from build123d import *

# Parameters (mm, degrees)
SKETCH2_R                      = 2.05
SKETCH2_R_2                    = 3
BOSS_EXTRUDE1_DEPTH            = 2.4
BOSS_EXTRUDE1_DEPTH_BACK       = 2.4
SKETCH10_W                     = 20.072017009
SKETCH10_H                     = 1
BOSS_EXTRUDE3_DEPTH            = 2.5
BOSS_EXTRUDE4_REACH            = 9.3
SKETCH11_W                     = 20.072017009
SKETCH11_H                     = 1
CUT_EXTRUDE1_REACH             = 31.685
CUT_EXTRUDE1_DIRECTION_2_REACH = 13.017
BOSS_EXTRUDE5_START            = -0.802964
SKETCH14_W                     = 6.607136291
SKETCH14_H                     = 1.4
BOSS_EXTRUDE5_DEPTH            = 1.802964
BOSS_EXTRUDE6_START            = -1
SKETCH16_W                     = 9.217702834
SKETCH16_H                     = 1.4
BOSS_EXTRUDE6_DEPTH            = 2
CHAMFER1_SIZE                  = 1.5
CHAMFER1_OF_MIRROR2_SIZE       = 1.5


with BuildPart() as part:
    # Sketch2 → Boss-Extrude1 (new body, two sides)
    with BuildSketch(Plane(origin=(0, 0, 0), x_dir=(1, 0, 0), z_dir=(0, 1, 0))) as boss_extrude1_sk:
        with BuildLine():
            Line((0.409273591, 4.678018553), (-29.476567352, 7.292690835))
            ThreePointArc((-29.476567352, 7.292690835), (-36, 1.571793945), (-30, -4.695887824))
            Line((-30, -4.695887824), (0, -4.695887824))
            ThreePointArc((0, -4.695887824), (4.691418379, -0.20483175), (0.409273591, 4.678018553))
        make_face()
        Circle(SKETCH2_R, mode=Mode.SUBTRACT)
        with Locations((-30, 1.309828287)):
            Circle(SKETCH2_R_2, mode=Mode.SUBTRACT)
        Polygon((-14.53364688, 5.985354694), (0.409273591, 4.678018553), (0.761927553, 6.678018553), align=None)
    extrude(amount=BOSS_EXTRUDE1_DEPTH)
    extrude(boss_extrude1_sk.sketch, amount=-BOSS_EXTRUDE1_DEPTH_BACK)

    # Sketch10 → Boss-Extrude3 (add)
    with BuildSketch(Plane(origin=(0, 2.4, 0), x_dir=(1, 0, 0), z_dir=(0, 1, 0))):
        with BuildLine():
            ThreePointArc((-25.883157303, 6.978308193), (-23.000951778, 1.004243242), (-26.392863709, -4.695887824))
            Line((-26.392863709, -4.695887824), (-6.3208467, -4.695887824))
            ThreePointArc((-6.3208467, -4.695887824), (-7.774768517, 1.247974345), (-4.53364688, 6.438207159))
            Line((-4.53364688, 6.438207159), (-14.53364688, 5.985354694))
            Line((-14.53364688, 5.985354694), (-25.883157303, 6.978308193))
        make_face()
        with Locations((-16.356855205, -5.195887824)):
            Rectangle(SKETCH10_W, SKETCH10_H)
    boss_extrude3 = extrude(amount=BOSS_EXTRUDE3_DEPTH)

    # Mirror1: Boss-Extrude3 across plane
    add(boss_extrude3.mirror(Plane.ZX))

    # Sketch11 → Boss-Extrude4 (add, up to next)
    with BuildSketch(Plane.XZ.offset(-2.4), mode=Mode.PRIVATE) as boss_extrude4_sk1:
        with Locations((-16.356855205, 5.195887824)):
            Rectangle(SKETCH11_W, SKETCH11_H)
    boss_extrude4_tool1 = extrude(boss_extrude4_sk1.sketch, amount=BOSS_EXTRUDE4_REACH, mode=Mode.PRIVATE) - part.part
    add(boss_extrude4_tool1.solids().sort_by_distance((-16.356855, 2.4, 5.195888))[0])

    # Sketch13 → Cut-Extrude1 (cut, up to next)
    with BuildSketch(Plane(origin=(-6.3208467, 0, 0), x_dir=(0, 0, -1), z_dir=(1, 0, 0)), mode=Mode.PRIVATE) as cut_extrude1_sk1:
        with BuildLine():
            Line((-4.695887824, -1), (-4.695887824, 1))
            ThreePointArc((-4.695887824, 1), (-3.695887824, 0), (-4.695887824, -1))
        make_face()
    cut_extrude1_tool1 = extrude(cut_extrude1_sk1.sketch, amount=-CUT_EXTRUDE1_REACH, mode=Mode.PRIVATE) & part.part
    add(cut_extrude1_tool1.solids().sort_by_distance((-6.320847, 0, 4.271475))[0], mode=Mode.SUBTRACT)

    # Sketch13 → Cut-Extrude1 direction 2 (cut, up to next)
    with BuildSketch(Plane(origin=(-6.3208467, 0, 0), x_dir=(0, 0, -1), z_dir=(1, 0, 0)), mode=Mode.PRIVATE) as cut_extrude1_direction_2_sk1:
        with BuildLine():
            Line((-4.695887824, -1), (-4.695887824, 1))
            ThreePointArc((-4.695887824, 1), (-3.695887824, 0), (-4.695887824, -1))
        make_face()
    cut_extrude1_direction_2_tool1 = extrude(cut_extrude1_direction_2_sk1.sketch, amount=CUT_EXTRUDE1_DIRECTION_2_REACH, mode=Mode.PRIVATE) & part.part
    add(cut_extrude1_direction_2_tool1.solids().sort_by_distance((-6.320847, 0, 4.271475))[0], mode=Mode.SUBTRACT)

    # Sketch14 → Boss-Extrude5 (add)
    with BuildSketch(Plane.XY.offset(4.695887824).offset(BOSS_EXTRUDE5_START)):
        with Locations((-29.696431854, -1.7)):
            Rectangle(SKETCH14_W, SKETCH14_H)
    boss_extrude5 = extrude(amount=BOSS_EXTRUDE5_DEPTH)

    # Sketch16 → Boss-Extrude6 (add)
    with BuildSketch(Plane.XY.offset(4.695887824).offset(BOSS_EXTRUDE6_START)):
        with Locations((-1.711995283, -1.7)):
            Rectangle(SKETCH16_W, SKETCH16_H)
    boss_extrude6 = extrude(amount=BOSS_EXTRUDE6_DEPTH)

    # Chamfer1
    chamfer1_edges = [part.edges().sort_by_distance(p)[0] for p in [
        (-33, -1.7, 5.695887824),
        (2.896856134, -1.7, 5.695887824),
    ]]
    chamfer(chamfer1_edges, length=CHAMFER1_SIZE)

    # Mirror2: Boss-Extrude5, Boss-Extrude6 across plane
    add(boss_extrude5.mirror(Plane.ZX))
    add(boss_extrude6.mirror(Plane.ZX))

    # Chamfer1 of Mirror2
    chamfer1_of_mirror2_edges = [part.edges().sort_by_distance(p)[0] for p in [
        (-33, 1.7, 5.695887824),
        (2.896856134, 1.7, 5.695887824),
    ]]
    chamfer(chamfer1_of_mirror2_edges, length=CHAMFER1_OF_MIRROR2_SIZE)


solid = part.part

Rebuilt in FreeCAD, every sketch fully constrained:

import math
import FreeCAD as App
import Part
import Sketcher
from FreeCAD import Vector
Q = App.Units.Quantity


def edges_at(feature, points):
    """Names of the edges that pass closest to the given points."""
    edges = feature.Shape.Edges
    near = lambda p: min(range(len(edges)), key=lambda i: edges[i].distToShape(Part.Vertex(*p))[0])
    return sorted({f"Edge{near(p) + 1}" for p in points})


def add_polygon(sketch, points):
    """Adds a closed chain of lines whose ends are joined by coincident constraints."""
    first, n = sketch.GeometryCount, len(points)
    for a, b in zip(points, points[1:] + points[:1]):
        sketch.addGeometry(Part.LineSegment(App.Vector(*a, 0), App.Vector(*b, 0)), False)
    for i in range(n):
        sketch.addConstraint(Sketcher.Constraint("Coincident", first + i, 2, first + (i + 1) % n, 1))

doc = App.newDocument("Part")
params = doc.addObject("Spreadsheet::Sheet", "Params")
for row, (alias, value) in enumerate([
    ("sketch1_diameter", "6 mm"),
    ("sketch1_diameter2", "4.1 mm"),
    ("sketch1_width", "30 mm"),
    ("sketch1_length", "15 mm"),
    ("pad1_length", "2.4 mm"),
    ("pad1_length2", "2.4 mm"),
    ("sketch2_height", "1 mm"),
    ("sketch2_height2", "1 mm"),
    ("pad2_length", "2.5 mm"),
    ("sketch3_height", "1 mm"),
    ("sketch4_radius", "1 mm"),
    ("sketch5_radius", "1 mm"),
    ("sketch6_height", "1.4 mm"),
    ("pad4_length", "1.802964 mm"),
    ("sketch7_height", "1.4 mm"),
    ("pad5_length", "2 mm"),
    ("chamfer_size", "1.5 mm"),
    ("chamfer2_size", "1.5 mm"),
], start=1):
    params.set(f"A{row}", alias)
    params.set(f"B{row}", "=" + value)
    params.setAlias(f"B{row}", alias)

body = doc.addObject("PartDesign::Body", "Body")

# Sketch on XZ plane
sketch1 = doc.addObject("Sketcher::SketchObject", "Sketch")
body.addObject(sketch1)
sketch1.AttachmentSupport = (doc.XZ_Plane, [""])
sketch1.MapMode = "FlatFace"
sketch1.addGeometry([
    Part.LineSegment(Vector(-14.5, -6, 0), Vector(-29.5, -7.3, 0)),  # 0
    Part.ArcOfCircle(Part.Circle(Vector(-30, -1.3, 0), Vector(0, 0, 1), 6), math.radians(90), math.radians(275)),  # 1
    Part.LineSegment(Vector(-30, 4.7, 0), Vector(0, 4.7, 0)),  # 2
    Part.ArcOfCircle(Part.Circle(Vector(0, 0, 0), Vector(0, 0, 1), 4.7), math.radians(-85), math.radians(90)),  # 3
    Part.LineSegment(Vector(0.4, -4.7, 0), Vector(0.8, -6.7, 0)),  # 4
    Part.LineSegment(Vector(0.8, -6.7, 0), Vector(-14.5, -6, 0)),  # 5
    Part.Circle(Vector(0, 0, 0), Vector(0, 0, 1), 2),  # 6
    Part.Circle(Vector(-30, -1.3, 0), Vector(0, 0, 1), 3),  # 7
], False)
sketch1.addConstraint([
    Sketcher.Constraint("Tangent", 0, 2, 1, 2),
    Sketcher.Constraint("Tangent", 1, 1, 2, 1),
    Sketcher.Constraint("Tangent", 2, 2, 3, 2),
    Sketcher.Constraint("Coincident", 3, 1, 4, 1),
    Sketcher.Constraint("Coincident", 4, 2, 5, 1),
    Sketcher.Constraint("Coincident", 5, 2, 0, 1),
    Sketcher.Constraint("Horizontal", 2),
    Sketcher.Constraint("Coincident", 3, 3, -1, 1),
    Sketcher.Constraint("Coincident", 6, 3, -1, 1),
    Sketcher.Constraint("Coincident", 7, 3, 1, 3),
    Sketcher.Constraint("Diameter", 7, Q("6 mm")),
    Sketcher.Constraint("Diameter", 6, Q("4.1 mm")),
    Sketcher.Constraint("DistanceX", 2, 1, 2, 2, Q("30 mm")),
    Sketcher.Constraint("Angle", 0, Q("-175 deg")),
    Sketcher.Constraint("Angle", 4, Q("-80 deg")),
    Sketcher.Constraint("Distance", 0, Q("15 mm")),
    Sketcher.Constraint("DistanceY", 4, 2, 3, 1, Q("2 mm")),
    Sketcher.Constraint("Radius", 1, Q("6.005716 mm")),
    Sketcher.Constraint("Radius", 3, Q("4.695888 mm")),
    Sketcher.Constraint("Distance", 5, Q("15.31125 mm")),
])
sketch1.setExpression("Constraints[10]", "Params.sketch1_diameter")
sketch1.setExpression("Constraints[11]", "Params.sketch1_diameter2")
sketch1.setExpression("Constraints[12]", "Params.sketch1_width")
sketch1.setExpression("Constraints[15]", "Params.sketch1_length")
pad1 = doc.addObject("PartDesign::Pad", "Pad")
body.addObject(pad1)
pad1.Profile = sketch1
pad1.Type = "TwoLengths"
pad1.setExpression("Length", "Params.pad1_length")
pad1.setExpression("Length2", "Params.pad1_length2")
pad1.Reversed = True

# Sketch on XZ plane
sketch2 = doc.addObject("Sketcher::SketchObject", "Sketch001")
body.addObject(sketch2)
sketch2.AttachmentSupport = (doc.XZ_Plane, [""])
sketch2.MapMode = "FlatFace"
sketch2.AttachmentOffset = App.Placement(Vector(0, 0, -2.4), App.Rotation())
sketch2.addGeometry([
    Part.ArcOfCircle(Part.Circle(Vector(-30, -1.309828, 0), Vector(0, 0, 1), 7.005716), math.radians(-54.010249), math.radians(59.010249)),  # 0
    Part.LineSegment(Vector(-26.392864, 4.695888, 0), Vector(-26.392864, 5.695888, 0)),  # 1
    Part.LineSegment(Vector(-26.392864, 5.695888, 0), Vector(-6.320847, 5.695888, 0)),  # 2
    Part.LineSegment(Vector(-6.320847, 5.695888, 0), Vector(-6.320847, 4.695888, 0)),  # 3
    Part.ArcOfCircle(Part.Circle(Vector(0, 0, 0), Vector(0, 0, 1), 7.874291), math.radians(143.390579), math.radians(234.847618)),  # 4
    Part.LineSegment(Vector(-4.533647, -6.438207, 0), Vector(-14.533647, -5.985355, 0)),  # 5
    Part.LineSegment(Vector(-14.533647, -5.985355, 0), Vector(-25.883157, -6.978308, 0)),  # 6
], False)
sketch2.addConstraint([
    Sketcher.Constraint("Coincident", 0, 2, 1, 1),
    Sketcher.Constraint("Coincident", 1, 2, 2, 1),
    Sketcher.Constraint("Coincident", 2, 2, 3, 1),
    Sketcher.Constraint("Coincident", 3, 2, 4, 1),
    Sketcher.Constraint("Coincident", 4, 2, 5, 1),
    Sketcher.Constraint("Coincident", 5, 2, 6, 1),
    Sketcher.Constraint("Coincident", 6, 2, 0, 1),
    Sketcher.Constraint("Vertical", 1),
    Sketcher.Constraint("Horizontal", 2),
    Sketcher.Constraint("Vertical", 3),
    Sketcher.Constraint("Coincident", 4, 3, -1, 1),
    Sketcher.Constraint("DistanceY", 1, 1, 1, 2, Q("1 mm")),
    Sketcher.Constraint("DistanceY", 3, 2, 3, 1, Q("1 mm")),
    Sketcher.Constraint("DistanceX", 0, 3, -1, 1, Q("30 mm")),
    Sketcher.Constraint("DistanceX", 5, 2, 4, 2, Q("10 mm")),
    Sketcher.Constraint("Radius", 4, Q("7.874291 mm")),
    Sketcher.Constraint("Radius", 0, Q("7.005716 mm")),
    Sketcher.Constraint("DistanceX", 3, 2, 4, 2, Q("1.7872 mm")),
    Sketcher.Constraint("DistanceY", 6, 2, 4, 2, Q("0.540101 mm")),
    Sketcher.Constraint("Distance", 5, Q("10.010249 mm")),
    Sketcher.Constraint("DistanceX", 2, 1, 2, 2, Q("20.072017 mm")),
    Sketcher.Constraint("DistanceY", 0, 3, -1, 1, Q("1.309828 mm")),
])
sketch2.setExpression("Constraints[11]", "Params.sketch2_height")
sketch2.setExpression("Constraints[12]", "Params.sketch2_height2")
pad2 = doc.addObject("PartDesign::Pad", "Pad001")
body.addObject(pad2)
pad2.Profile = sketch2
pad2.setExpression("Length", "Params.pad2_length")
pad2.Reversed = True
doc.recompute()

mirrored = doc.addObject("PartDesign::Mirrored", "Mirrored")
body.addObject(mirrored)
mirrored.Originals = [pad2]
mirrored.MirrorPlane = (doc.XZ_Plane, [""])
body.Tip = mirrored

# Sketch on XZ plane
sketch3 = doc.addObject("Sketcher::SketchObject", "Sketch002")
body.addObject(sketch3)
sketch3.AttachmentSupport = (doc.XZ_Plane, [""])
sketch3.MapMode = "FlatFace"
sketch3.AttachmentOffset = App.Placement(Vector(0, 0, -2.4), App.Rotation())
add_polygon(sketch3, [(-26.4, 5.7), (-26.4, 4.7), (-6.3, 4.7), (-6.3, 5.7)])  # lines 0-3
sketch3.addConstraint([
    Sketcher.Constraint("Vertical", 0),
    Sketcher.Constraint("Horizontal", 1),
    Sketcher.Constraint("Vertical", 2),
    Sketcher.Constraint("Horizontal", 3),
    Sketcher.Constraint("DistanceY", 0, 2, 0, 1, Q("1 mm")),
    Sketcher.Constraint("DistanceX", 1, 1, 1, 2, Q("20.072017 mm")),
    Sketcher.Constraint("DistanceX", 0, 2, -1, 1, Q("26.392864 mm")),
    Sketcher.Constraint("DistanceY", -1, 1, 0, 2, Q("4.695888 mm")),
])
sketch3.setExpression("Constraints[8]", "Params.sketch3_height")
pad3 = doc.addObject("PartDesign::Pad", "Pad002")
body.addObject(pad3)
pad3.Profile = sketch3
pad3.Type = "UpToFirst"

# Sketch on YZ plane
sketch4 = doc.addObject("Sketcher::SketchObject", "Sketch003")
body.addObject(sketch4)
sketch4.AttachmentSupport = (doc.YZ_Plane, [""])
sketch4.MapMode = "FlatFace"
sketch4.AttachmentOffset = App.Placement(Vector(0, 0, -6.320847), App.Rotation())
sketch4.addGeometry([
    Part.LineSegment(Vector(1, 4.7, 0), Vector(-1, 4.7, 0)),
    Part.ArcOfCircle(Part.Circle(Vector(0, 4.7, 0), Vector(0, 0, 1), 1), math.radians(180), math.radians(360)),
], False)
sketch4.addConstraint([
    Sketcher.Constraint("Coincident", 0, 1, 1, 2),
    Sketcher.Constraint("Coincident", 1, 1, 0, 2),
    Sketcher.Constraint("Horizontal", 0),
    Sketcher.Constraint("PointOnObject", 1, 3, -2),
    Sketcher.Constraint("Horizontal", 1, 3, 0, 1),
    Sketcher.Constraint("Radius", 1, Q("1 mm")),
    Sketcher.Constraint("DistanceY", -1, 1, 1, 3, Q("4.695888 mm")),
])
sketch4.setExpression("Constraints[5]", "Params.sketch4_radius")
pocket1 = doc.addObject("PartDesign::Pocket", "Pocket")
body.addObject(pocket1)
pocket1.Profile = sketch4
pocket1.Type = "UpToFirst"

# Sketch on YZ plane
sketch5 = doc.addObject("Sketcher::SketchObject", "Sketch004")
body.addObject(sketch5)
sketch5.AttachmentSupport = (doc.YZ_Plane, [""])
sketch5.MapMode = "FlatFace"
sketch5.AttachmentOffset = App.Placement(Vector(0, 0, -6.320847), App.Rotation())
sketch5.addGeometry([
    Part.LineSegment(Vector(1, 4.7, 0), Vector(-1, 4.7, 0)),
    Part.ArcOfCircle(Part.Circle(Vector(0, 4.7, 0), Vector(0, 0, 1), 1), math.radians(180), math.radians(360)),
], False)
sketch5.addConstraint([
    Sketcher.Constraint("Coincident", 0, 1, 1, 2),
    Sketcher.Constraint("Coincident", 1, 1, 0, 2),
    Sketcher.Constraint("Horizontal", 0),
    Sketcher.Constraint("PointOnObject", 1, 3, -2),
    Sketcher.Constraint("Horizontal", 1, 3, 0, 1),
    Sketcher.Constraint("Radius", 1, Q("1 mm")),
    Sketcher.Constraint("DistanceY", -1, 1, 1, 3, Q("4.695888 mm")),
])
sketch5.setExpression("Constraints[5]", "Params.sketch5_radius")
pocket2 = doc.addObject("PartDesign::Pocket", "Pocket001")
body.addObject(pocket2)
pocket2.Profile = sketch5
pocket2.Type = "UpToFirst"
pocket2.Reversed = True

# Sketch on XY plane
sketch6 = doc.addObject("Sketcher::SketchObject", "Sketch005")
body.addObject(sketch6)
sketch6.AttachmentSupport = (doc.XY_Plane, [""])
sketch6.MapMode = "FlatFace"
sketch6.AttachmentOffset = App.Placement(Vector(0, 0, 3.892924), App.Rotation())
add_polygon(sketch6, [(-33, -1), (-33, -2.4), (-26.4, -2.4), (-26.4, -1)])  # lines 0-3
sketch6.addConstraint([
    Sketcher.Constraint("Vertical", 0),
    Sketcher.Constraint("Horizontal", 1),
    Sketcher.Constraint("Vertical", 2),
    Sketcher.Constraint("Horizontal", 3),
    Sketcher.Constraint("DistanceY", 0, 2, 0, 1, Q("1.4 mm")),
    Sketcher.Constraint("DistanceX", 0, 2, -1, 1, Q("33 mm")),
    Sketcher.Constraint("DistanceY", 2, 2, -1, 1, Q("1 mm")),
    Sketcher.Constraint("DistanceX", 1, 1, 1, 2, Q("6.607136 mm")),
])
sketch6.setExpression("Constraints[8]", "Params.sketch6_height")
pad4 = doc.addObject("PartDesign::Pad", "Pad003")
body.addObject(pad4)
pad4.Profile = sketch6
pad4.setExpression("Length", "Params.pad4_length")

# Sketch on XY plane
sketch7 = doc.addObject("Sketcher::SketchObject", "Sketch006")
body.addObject(sketch7)
sketch7.AttachmentSupport = (doc.XY_Plane, [""])
sketch7.MapMode = "FlatFace"
sketch7.AttachmentOffset = App.Placement(Vector(0, 0, 3.695888), App.Rotation())
add_polygon(sketch7, [(-6.3, -1), (-6.3, -2.4), (2.9, -2.4), (2.9, -1)])  # lines 0-3
sketch7.addConstraint([
    Sketcher.Constraint("Vertical", 0),
    Sketcher.Constraint("Horizontal", 1),
    Sketcher.Constraint("Vertical", 2),
    Sketcher.Constraint("Horizontal", 3),
    Sketcher.Constraint("DistanceY", 0, 2, 0, 1, Q("1.4 mm")),
    Sketcher.Constraint("DistanceY", 2, 2, -1, 1, Q("1 mm")),
    Sketcher.Constraint("DistanceX", 1, 1, 1, 2, Q("9.217703 mm")),
    Sketcher.Constraint("DistanceX", 0, 2, -1, 1, Q("6.320847 mm")),
])
sketch7.setExpression("Constraints[8]", "Params.sketch7_height")
pad5 = doc.addObject("PartDesign::Pad", "Pad004")
body.addObject(pad5)
pad5.Profile = sketch7
pad5.setExpression("Length", "Params.pad5_length")
doc.recompute()

chamfer = doc.addObject("PartDesign::Chamfer", "Chamfer")
body.addObject(chamfer)
chamfer.Base = (pad5, edges_at(pad5, [(-33, -1.7, 5.696), (2.897, -1.7, 5.696)]))
chamfer.setExpression("Size", "Params.chamfer_size")
doc.recompute()

mirrored2 = doc.addObject("PartDesign::Mirrored", "Mirrored001")
body.addObject(mirrored2)
mirrored2.Originals = [pad4, pad5]
mirrored2.MirrorPlane = (doc.XZ_Plane, [""])
body.Tip = mirrored2
doc.recompute()

chamfer2 = doc.addObject("PartDesign::Chamfer", "Chamfer001")
body.addObject(chamfer2)
chamfer2.Base = (mirrored2, edges_at(mirrored2, [(-33, 1.7, 5.696), (2.897, 1.7, 5.696)]))
chamfer2.setExpression("Size", "Params.chamfer2_size")

doc.recompute()
